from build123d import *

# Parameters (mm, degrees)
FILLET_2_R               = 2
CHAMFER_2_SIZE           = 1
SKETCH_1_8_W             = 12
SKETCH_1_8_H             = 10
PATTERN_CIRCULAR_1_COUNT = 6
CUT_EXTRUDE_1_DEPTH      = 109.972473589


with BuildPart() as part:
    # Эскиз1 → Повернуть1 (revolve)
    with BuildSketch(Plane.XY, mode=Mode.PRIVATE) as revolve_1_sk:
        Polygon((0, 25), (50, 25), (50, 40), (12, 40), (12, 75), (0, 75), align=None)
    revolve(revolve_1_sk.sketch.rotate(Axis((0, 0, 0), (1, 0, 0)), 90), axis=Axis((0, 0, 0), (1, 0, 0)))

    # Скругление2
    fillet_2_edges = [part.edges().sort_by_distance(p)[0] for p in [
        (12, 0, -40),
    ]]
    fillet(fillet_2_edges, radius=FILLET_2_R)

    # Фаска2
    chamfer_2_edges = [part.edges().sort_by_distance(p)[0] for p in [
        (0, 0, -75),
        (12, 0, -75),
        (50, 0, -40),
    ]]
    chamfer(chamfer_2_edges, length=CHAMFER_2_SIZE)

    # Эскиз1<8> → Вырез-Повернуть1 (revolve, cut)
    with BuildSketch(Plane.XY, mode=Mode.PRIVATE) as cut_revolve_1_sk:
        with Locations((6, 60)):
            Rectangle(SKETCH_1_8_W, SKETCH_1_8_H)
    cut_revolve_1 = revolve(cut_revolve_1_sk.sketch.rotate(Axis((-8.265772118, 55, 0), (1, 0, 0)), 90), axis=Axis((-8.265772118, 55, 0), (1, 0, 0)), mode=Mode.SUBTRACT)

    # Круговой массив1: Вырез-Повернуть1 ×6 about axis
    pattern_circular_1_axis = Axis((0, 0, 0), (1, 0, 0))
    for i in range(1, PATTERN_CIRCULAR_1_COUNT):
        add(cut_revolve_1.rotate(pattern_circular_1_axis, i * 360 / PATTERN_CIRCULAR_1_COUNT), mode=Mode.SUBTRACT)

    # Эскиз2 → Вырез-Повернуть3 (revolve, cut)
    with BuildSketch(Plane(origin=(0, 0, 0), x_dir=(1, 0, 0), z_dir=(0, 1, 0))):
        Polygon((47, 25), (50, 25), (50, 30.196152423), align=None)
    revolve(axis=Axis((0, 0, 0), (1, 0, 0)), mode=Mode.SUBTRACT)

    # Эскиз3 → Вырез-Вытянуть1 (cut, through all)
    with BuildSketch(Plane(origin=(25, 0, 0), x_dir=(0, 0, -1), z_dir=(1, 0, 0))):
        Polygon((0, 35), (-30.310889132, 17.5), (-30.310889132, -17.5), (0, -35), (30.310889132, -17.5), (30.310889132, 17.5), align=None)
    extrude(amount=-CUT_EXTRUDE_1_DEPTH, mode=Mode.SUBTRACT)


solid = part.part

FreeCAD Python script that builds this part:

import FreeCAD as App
import Part
import Sketcher

V = App.Vector
Q = App.Units.Quantity


def edges_at(feature, points):
    """Names of the edges that pass closest to the given points."""
    edges = feature.Shape.Edges
    near = lambda p: min(range(len(edges)), key=lambda i: edges[i].distToShape(Part.Vertex(*p))[0])
    return sorted({f"Edge{near(p) + 1}" for p in points})


def add_polygon(sketch, points):
    """Adds a closed chain of lines whose ends are joined by coincident constraints."""
    first, n = sketch.GeometryCount, len(points)
    for a, b in zip(points, points[1:] + points[:1]):
        sketch.addGeometry(Part.LineSegment(App.Vector(*a, 0), App.Vector(*b, 0)), False)
    for i in range(n):
        sketch.addConstraint(Sketcher.Constraint("Coincident", first + i, 2, first + (i + 1) % n, 1))

doc = App.newDocument("Part")
body = doc.addObject("PartDesign::Body", "Body")

# Sketch on XY plane
sketch1 = doc.addObject("Sketcher::SketchObject", "Sketch")
body.addObject(sketch1)
sketch1.AttachmentSupport = (doc.XY_Plane, [""])
sketch1.MapMode = "FlatFace"
add_polygon(sketch1, [(0, 25), (50, 25), (50, 40), (12, 40), (12, 75), (0, 75)])  # lines 0-5
sketch1.addConstraint(Sketcher.Constraint("Horizontal", 0))
sketch1.addConstraint(Sketcher.Constraint("Vertical", 1))
sketch1.addConstraint(Sketcher.Constraint("Horizontal", 2))
sketch1.addConstraint(Sketcher.Constraint("Vertical", 3))
sketch1.addConstraint(Sketcher.Constraint("Horizontal", 4))
sketch1.addConstraint(Sketcher.Constraint("Vertical", 5))
sketch1.addConstraint(Sketcher.Constraint("PointOnObject", 4, 2, -2))
sketch1.addConstraint(Sketcher.Constraint("Equal", 0, 5))
sketch1.addConstraint(Sketcher.Constraint("DistanceX", 0, 1, 0, 2, Q("50 mm")))
sketch1.addConstraint(Sketcher.Constraint("DistanceX", 2, 2, 2, 1, Q("38 mm")))
sketch1.addConstraint(Sketcher.Constraint("DistanceY", 1, 1, 1, 2, Q("15 mm")))
sketch1.addConstraint(Sketcher.Constraint("DistanceY", -1, 1, 0, 2, Q("25 mm")))
revolution = doc.addObject("PartDesign::Revolution", "Revolution")
body.addObject(revolution)
revolution.Profile = sketch1
revolution.ReferenceAxis = (sketch1, ["H_Axis"])
revolution.Angle = 360
doc.recompute()

fillet = doc.addObject("PartDesign::Fillet", "Fillet")
body.addObject(fillet)
fillet.Base = (revolution, edges_at(revolution, [(12, 0, -40)]))
fillet.Radius = 2
doc.recompute()

chamfer = doc.addObject("PartDesign::Chamfer", "Chamfer")
body.addObject(chamfer)
chamfer.Base = (fillet, edges_at(fillet, [(0, 0, -75), (12, 0, -75), (50, 0, -40)]))
chamfer.Size = 1

# Sketch on XY plane
sketch2 = doc.addObject("Sketcher::SketchObject", "Sketch001")
body.addObject(sketch2)
sketch2.AttachmentSupport = (doc.XY_Plane, [""])
sketch2.MapMode = "FlatFace"
add_polygon(sketch2, [(0, 65), (0, 55), (12, 55), (12, 65)])  # lines 0-3
sketch2.addGeometry(Part.LineSegment(V(0, 55, 0), V(12, 55, 0)), True)  # axis
sketch2.addConstraint(Sketcher.Constraint("Vertical", 0))
sketch2.addConstraint(Sketcher.Constraint("Horizontal", 1))
sketch2.addConstraint(Sketcher.Constraint("Vertical", 2))
sketch2.addConstraint(Sketcher.Constraint("Horizontal", 3))
sketch2.addConstraint(Sketcher.Constraint("Horizontal", 4))
sketch2.addConstraint(Sketcher.Constraint("Coincident", 4, 1, 0, 2))
sketch2.addConstraint(Sketcher.Constraint("PointOnObject", 0, 2, -2))
sketch2.addConstraint(Sketcher.Constraint("Vertical", 2, 2, 4, 2))
sketch2.addConstraint(Sketcher.Constraint("DistanceX", 1, 1, 1, 2, Q("12 mm")))
sketch2.addConstraint(Sketcher.Constraint("DistanceY", 0, 2, 0, 1, Q("10 mm")))
sketch2.addConstraint(Sketcher.Constraint("DistanceY", -1, 1, 0, 2, Q("55 mm")))
groove = doc.addObject("PartDesign::Groove", "Groove")
body.addObject(groove)
groove.Profile = sketch2
groove.ReferenceAxis = (sketch2, ["Axis0"])
groove.Angle = 360
doc.recompute()

polarpattern = doc.addObject("PartDesign::PolarPattern", "PolarPattern")
body.addObject(polarpattern)
polarpattern.Originals = [groove]
polarpattern.Axis = (doc.X_Axis, [""])
polarpattern.Angle = 360
polarpattern.Occurrences = 6
body.Tip = polarpattern

# Sketch on XZ plane
sketch3 = doc.addObject("Sketcher::SketchObject", "Sketch002")
body.addObject(sketch3)
sketch3.AttachmentSupport = (doc.XZ_Plane, [""])
sketch3.MapMode = "FlatFace"
add_polygon(sketch3, [(47, -25), (50, -25), (50, -30.2)])  # lines 0-2
sketch3.addConstraint(Sketcher.Constraint("Horizontal", 0))
sketch3.addConstraint(Sketcher.Constraint("Vertical", 1))
sketch3.addConstraint(Sketcher.Constraint("DistanceX", 0, 1, 0, 2, Q("3 mm")))
sketch3.addConstraint(Sketcher.Constraint("Angle", 2, Q("120 deg")))
sketch3.addConstraint(Sketcher.Constraint("DistanceX", -1, 1, 0, 2, Q("50 mm")))
sketch3.addConstraint(Sketcher.Constraint("DistanceY", 0, 2, -1, 1, Q("25 mm")))
groove2 = doc.addObject("PartDesign::Groove", "Groove001")
body.addObject(groove2)
groove2.Profile = sketch3
groove2.ReferenceAxis = (sketch3, ["H_Axis"])
groove2.Angle = 360

# Sketch on YZ plane
sketch4 = doc.addObject("Sketcher::SketchObject", "Sketch003")
body.addObject(sketch4)
sketch4.AttachmentSupport = (doc.YZ_Plane, [""])
sketch4.MapMode = "FlatFace"
sketch4.AttachmentOffset = App.Placement(V(0, 0, 25), App.Rotation())
add_polygon(sketch4, [(35, 0), (18, 30), (-18, 30), (-35, 0), (-18, -30), (18, -30)])  # lines 0-5
sketch4.addConstraint(Sketcher.Constraint("Horizontal", 1))
sketch4.addConstraint(Sketcher.Constraint("Horizontal", 4))
sketch4.addConstraint(Sketcher.Constraint("Symmetric", 0, 2, 3, 2, -1, 1))
sketch4.addConstraint(Sketcher.Constraint("Symmetric", 2, 2, 5, 2, -1, 1))
sketch4.addConstraint(Sketcher.Constraint("PointOnObject", 2, 2, -1))
sketch4.addConstraint(Sketcher.Constraint("Parallel", 2, 5))
sketch4.addConstraint(Sketcher.Constraint("Vertical", 1, 2, 3, 2))
sketch4.addConstraint(Sketcher.Constraint("DistanceX", 1, 2, 1, 1, Q("35 mm")))
sketch4.addConstraint(Sketcher.Constraint("Angle", 0, Q("120 deg")))
sketch4.addConstraint(Sketcher.Constraint("Distance", 0, Q("35 mm")))
pocket1 = doc.addObject("PartDesign::Pocket", "Pocket")
body.addObject(pocket1)
pocket1.Profile = sketch4
pocket1.Type = "ThroughAll"

doc.recompute()
